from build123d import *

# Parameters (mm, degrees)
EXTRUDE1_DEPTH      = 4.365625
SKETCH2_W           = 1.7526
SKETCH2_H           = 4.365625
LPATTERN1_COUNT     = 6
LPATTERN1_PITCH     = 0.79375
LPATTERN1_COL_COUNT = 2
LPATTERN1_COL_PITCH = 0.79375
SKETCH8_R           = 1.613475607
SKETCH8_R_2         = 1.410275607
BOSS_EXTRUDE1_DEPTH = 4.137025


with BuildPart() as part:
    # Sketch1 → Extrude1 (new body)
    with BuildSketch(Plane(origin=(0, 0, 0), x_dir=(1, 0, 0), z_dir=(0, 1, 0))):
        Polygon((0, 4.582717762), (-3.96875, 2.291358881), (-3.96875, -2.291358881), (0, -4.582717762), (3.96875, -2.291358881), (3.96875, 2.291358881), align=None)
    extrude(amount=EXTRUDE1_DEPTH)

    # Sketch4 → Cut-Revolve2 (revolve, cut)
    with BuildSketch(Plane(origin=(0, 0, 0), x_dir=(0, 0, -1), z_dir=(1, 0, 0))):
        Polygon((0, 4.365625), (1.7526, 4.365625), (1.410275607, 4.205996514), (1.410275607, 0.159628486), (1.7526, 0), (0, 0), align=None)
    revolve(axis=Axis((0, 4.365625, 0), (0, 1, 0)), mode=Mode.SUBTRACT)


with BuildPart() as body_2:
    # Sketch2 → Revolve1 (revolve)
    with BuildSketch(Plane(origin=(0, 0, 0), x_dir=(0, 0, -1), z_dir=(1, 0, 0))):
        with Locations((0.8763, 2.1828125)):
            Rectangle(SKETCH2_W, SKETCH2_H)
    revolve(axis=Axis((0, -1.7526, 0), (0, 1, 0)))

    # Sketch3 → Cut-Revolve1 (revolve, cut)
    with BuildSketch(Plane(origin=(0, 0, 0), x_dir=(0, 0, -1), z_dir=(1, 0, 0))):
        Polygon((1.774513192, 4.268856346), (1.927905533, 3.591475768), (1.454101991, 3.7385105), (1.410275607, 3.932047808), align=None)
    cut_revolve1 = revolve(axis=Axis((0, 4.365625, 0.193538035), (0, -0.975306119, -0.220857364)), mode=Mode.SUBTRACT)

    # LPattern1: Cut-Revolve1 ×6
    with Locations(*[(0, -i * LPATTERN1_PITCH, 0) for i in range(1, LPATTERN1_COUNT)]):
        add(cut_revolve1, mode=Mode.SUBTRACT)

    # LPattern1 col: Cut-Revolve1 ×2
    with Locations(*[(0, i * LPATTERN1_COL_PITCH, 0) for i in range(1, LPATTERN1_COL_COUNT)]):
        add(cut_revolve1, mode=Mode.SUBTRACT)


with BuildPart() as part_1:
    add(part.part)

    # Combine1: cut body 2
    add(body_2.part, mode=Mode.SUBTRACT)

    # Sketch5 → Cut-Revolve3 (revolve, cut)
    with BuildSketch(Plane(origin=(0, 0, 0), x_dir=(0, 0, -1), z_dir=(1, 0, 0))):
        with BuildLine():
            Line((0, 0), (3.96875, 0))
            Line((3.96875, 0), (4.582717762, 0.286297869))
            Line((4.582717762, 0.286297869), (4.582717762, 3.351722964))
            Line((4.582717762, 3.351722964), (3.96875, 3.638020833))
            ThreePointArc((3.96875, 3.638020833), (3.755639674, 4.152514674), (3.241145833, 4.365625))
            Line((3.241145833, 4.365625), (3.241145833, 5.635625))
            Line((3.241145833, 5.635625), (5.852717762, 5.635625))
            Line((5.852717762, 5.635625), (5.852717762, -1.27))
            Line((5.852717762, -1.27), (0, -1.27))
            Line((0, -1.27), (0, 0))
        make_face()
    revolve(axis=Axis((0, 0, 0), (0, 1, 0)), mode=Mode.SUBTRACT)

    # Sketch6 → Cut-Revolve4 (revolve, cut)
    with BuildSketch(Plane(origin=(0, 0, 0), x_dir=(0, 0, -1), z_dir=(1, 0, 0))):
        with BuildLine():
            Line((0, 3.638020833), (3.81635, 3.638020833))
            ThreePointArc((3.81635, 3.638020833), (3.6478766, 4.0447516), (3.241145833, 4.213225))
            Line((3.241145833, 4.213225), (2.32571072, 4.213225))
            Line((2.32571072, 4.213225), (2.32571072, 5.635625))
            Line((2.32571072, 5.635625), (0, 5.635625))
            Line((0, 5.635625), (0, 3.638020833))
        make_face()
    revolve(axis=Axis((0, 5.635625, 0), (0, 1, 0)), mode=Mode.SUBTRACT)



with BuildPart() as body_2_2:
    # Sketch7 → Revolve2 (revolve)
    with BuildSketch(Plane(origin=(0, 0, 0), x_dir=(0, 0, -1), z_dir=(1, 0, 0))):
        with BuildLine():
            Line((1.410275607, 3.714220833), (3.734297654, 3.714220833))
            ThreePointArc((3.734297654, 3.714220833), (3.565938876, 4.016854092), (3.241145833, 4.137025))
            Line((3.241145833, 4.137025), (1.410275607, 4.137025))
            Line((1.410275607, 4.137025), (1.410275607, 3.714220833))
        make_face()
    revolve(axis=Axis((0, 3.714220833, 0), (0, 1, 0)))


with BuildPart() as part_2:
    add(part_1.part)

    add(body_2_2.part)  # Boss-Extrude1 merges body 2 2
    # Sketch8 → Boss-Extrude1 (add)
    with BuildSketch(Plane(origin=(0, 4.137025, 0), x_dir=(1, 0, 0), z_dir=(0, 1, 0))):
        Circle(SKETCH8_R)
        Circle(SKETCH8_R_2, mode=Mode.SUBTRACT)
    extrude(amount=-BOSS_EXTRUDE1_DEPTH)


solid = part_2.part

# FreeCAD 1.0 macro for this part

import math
import FreeCAD as App
import Part
import Sketcher

V = App.Vector
Q = App.Units.Quantity

doc = App.newDocument("Part")
params = doc.addObject("Spreadsheet::Sheet", "Params")
for row, (alias, value) in enumerate([
    ("pad1_length", "0.171875 in"),
    ("sketch2_width", "0.171875 in"),
    ("sketch2_height", "0.069 in"),
    ("groove_angle", "360 deg"),
    ("sketch3_width", "0.171875 in"),
    ("sketch3_height", "0.069 in"),
    ("revolution_angle", "360 deg"),
    ("groove2_angle", "360 deg"),
    ("linearpattern_pitch", "0.03125 in"),
    ("linearpattern2_pitch", "0.03125 in"),
    ("sketch5_width", "0.05 in"),
    ("sketch5_height", "0.15625 in"),
    ("groove3_angle", "360 deg"),
    ("sketch6_width", "0.056 in"),
    ("groove4_angle", "360 deg"),
    ("revolution2_angle", "360 deg"),
    ("pad2_length", "4.137025 mm"),
], start=1):
    params.set(f"A{row}", alias)
    params.set(f"B{row}", "=" + value)
    params.setAlias(f"B{row}", alias)

body = doc.addObject("PartDesign::Body", "Body")

sketch1 = doc.addObject("Sketcher::SketchObject", "Sketch")
body.addObject(sketch1)
sketch1.AttachmentSupport = (doc.XZ_Plane, [""])
sketch1.MapMode = "FlatFace"
sketch1.addGeometry(Part.LineSegment(V(0, -4.6, 0), V(-4, -2.3, 0)), False)
sketch1.addGeometry(Part.LineSegment(V(-4, -2.3, 0), V(-4, 2.3, 0)), False)
sketch1.addGeometry(Part.LineSegment(V(-4, 2.3, 0), V(0, 4.6, 0)), False)
sketch1.addGeometry(Part.LineSegment(V(0, 4.6, 0), V(4, 2.3, 0)), False)
sketch1.addGeometry(Part.LineSegment(V(4, 2.3, 0), V(4, -2.3, 0)), False)
sketch1.addGeometry(Part.LineSegment(V(4, -2.3, 0), V(0, -4.6, 0)), False)
sketch1.addConstraint(Sketcher.Constraint("Coincident", 0, 2, 1, 1))
sketch1.addConstraint(Sketcher.Constraint("Coincident", 1, 2, 2, 1))
sketch1.addConstraint(Sketcher.Constraint("Coincident", 2, 2, 3, 1))
sketch1.addConstraint(Sketcher.Constraint("Coincident", 3, 2, 4, 1))
sketch1.addConstraint(Sketcher.Constraint("Coincident", 4, 2, 5, 1))
sketch1.addConstraint(Sketcher.Constraint("Coincident", 5, 2, 0, 1))
sketch1.addConstraint(Sketcher.Constraint("Vertical", 1))
sketch1.addConstraint(Sketcher.Constraint("Vertical", 4))
sketch1.addConstraint(Sketcher.Constraint("Symmetric", 0, 2, 3, 2, -1, 1))
sketch1.addConstraint(Sketcher.Constraint("Symmetric", 2, 2, 5, 2, -1, 1))
sketch1.addConstraint(Sketcher.Constraint("PointOnObject", 2, 2, -2))
sketch1.addConstraint(Sketcher.Constraint("Parallel", 2, 5))
sketch1.addConstraint(Sketcher.Constraint("Horizontal", 1, 2, 3, 2))
sketch1.addConstraint(Sketcher.Constraint("Angle", 0, Q("150 deg")))
sketch1.addConstraint(Sketcher.Constraint("DistanceX", 0, 2, -1, 1, Q("0.15625 in")))
sketch1.addConstraint(Sketcher.Constraint("DistanceY", 1, 1, 1, 2, 4.582718))
pad1 = doc.addObject("PartDesign::Pad", "Pad")
body.addObject(pad1)
pad1.Profile = sketch1
pad1.setExpression("Length", "Params.pad1_length")
pad1.Reversed = True

sketch2 = doc.addObject("Sketcher::SketchObject", "Sketch001")
body.addObject(sketch2)
sketch2.AttachmentSupport = (doc.YZ_Plane, [""])
sketch2.MapMode = "FlatFace"
sketch2.addGeometry(Part.LineSegment(V(4.37, -1.75, 0), V(4.37, 0, 0)), False)
sketch2.addGeometry(Part.LineSegment(V(4.37, 0, 0), V(0, 0, 0)), False)
sketch2.addGeometry(Part.LineSegment(V(0, 0, 0), V(0, -1.75, 0)), False)
sketch2.addGeometry(Part.LineSegment(V(0, -1.75, 0), V(0.16, -1.41, 0)), False)
sketch2.addGeometry(Part.LineSegment(V(0.16, -1.41, 0), V(4.21, -1.41, 0)), False)
sketch2.addGeometry(Part.LineSegment(V(4.21, -1.41, 0), V(4.37, -1.75, 0)), False)
sketch2.addConstraint(Sketcher.Constraint("Coincident", 0, 2, 1, 1))
sketch2.addConstraint(Sketcher.Constraint("Coincident", 1, 2, 2, 1))
sketch2.addConstraint(Sketcher.Constraint("Coincident", 2, 2, 3, 1))
sketch2.addConstraint(Sketcher.Constraint("Coincident", 3, 2, 4, 1))
sketch2.addConstraint(Sketcher.Constraint("Coincident", 4, 2, 5, 1))
sketch2.addConstraint(Sketcher.Constraint("Coincident", 5, 2, 0, 1))
sketch2.addConstraint(Sketcher.Constraint("Vertical", 0))
sketch2.addConstraint(Sketcher.Constraint("Horizontal", 1))
sketch2.addConstraint(Sketcher.Constraint("Vertical", 2))
sketch2.addConstraint(Sketcher.Constraint("Horizontal", 4))
sketch2.addConstraint(Sketcher.Constraint("Coincident", 1, 2, -1, 1))
sketch2.addConstraint(Sketcher.Constraint("Horizontal", 2, 2, 5, 2))
sketch2.addConstraint(Sketcher.Constraint("Equal", 3, 5))
sketch2.addConstraint(Sketcher.Constraint("Angle", 3, Q("65 deg")))
sketch2.addConstraint(Sketcher.Constraint("DistanceX", 1, 2, 1, 1, Q("0.171875 in")))
sketch2.addConstraint(Sketcher.Constraint("DistanceY", 0, 1, 0, 2, Q("0.069 in")))
sketch2.addConstraint(Sketcher.Constraint("DistanceX", 4, 1, 4, 2, 4.046368))
sketch2.setExpression("Constraints[14]", "Params.sketch2_width")
sketch2.setExpression("Constraints[15]", "Params.sketch2_height")
groove = doc.addObject("PartDesign::Groove", "Groove")
body.addObject(groove)
groove.Profile = sketch2
groove.ReferenceAxis = (sketch2, ["H_Axis"])
groove.setExpression("Angle", "Params.groove_angle")
body2 = doc.addObject("PartDesign::Body", "Body001")

sketch3 = doc.addObject("Sketcher::SketchObject", "Sketch002")
body2.addObject(sketch3)
sketch3.AttachmentSupport = (doc.getObject("YZ_Plane001"), [""])
sketch3.MapMode = "FlatFace"
sketch3.addGeometry(Part.LineSegment(V(4.4, 0, 0), V(0, 0, 0)), False)
sketch3.addGeometry(Part.LineSegment(V(0, 0, 0), V(0, -1.8, 0)), False)
sketch3.addGeometry(Part.LineSegment(V(0, -1.8, 0), V(4.4, -1.8, 0)), False)
sketch3.addGeometry(Part.LineSegment(V(4.4, -1.8, 0), V(4.4, 0, 0)), False)
sketch3.addConstraint(Sketcher.Constraint("Coincident", 0, 2, 1, 1))
sketch3.addConstraint(Sketcher.Constraint("Coincident", 1, 2, 2, 1))
sketch3.addConstraint(Sketcher.Constraint("Coincident", 2, 2, 3, 1))
sketch3.addConstraint(Sketcher.Constraint("Coincident", 3, 2, 0, 1))
sketch3.addConstraint(Sketcher.Constraint("Horizontal", 0))
sketch3.addConstraint(Sketcher.Constraint("Vertical", 1))
sketch3.addConstraint(Sketcher.Constraint("Horizontal", 2))
sketch3.addConstraint(Sketcher.Constraint("Vertical", 3))
sketch3.addConstraint(Sketcher.Constraint("Coincident", 0, 2, -1, 1))
sketch3.addConstraint(Sketcher.Constraint("DistanceX", 0, 2, 0, 1, Q("0.171875 in")))
sketch3.addConstraint(Sketcher.Constraint("DistanceY", 1, 2, 1, 1, Q("0.069 in")))
sketch3.setExpression("Constraints[9]", "Params.sketch3_width")
sketch3.setExpression("Constraints[10]", "Params.sketch3_height")
revolution = doc.addObject("PartDesign::Revolution", "Revolution")
body2.addObject(revolution)
revolution.Profile = sketch3
revolution.ReferenceAxis = (sketch3, ["H_Axis"])
revolution.setExpression("Angle", "Params.revolution_angle")

sketch4 = doc.addObject("Sketcher::SketchObject", "Sketch003")
body2.addObject(sketch4)
sketch4.AttachmentSupport = (doc.getObject("YZ_Plane001"), [""])
sketch4.MapMode = "FlatFace"
sketch4.addGeometry(Part.LineSegment(V(3.59, -1.93, 0), V(4.27, -1.77, 0)), False)
sketch4.addGeometry(Part.LineSegment(V(4.27, -1.77, 0), V(3.93, -1.41, 0)), False)
sketch4.addGeometry(Part.LineSegment(V(3.93, -1.41, 0), V(3.74, -1.45, 0)), False)
sketch4.addGeometry(Part.LineSegment(V(3.74, -1.45, 0), V(3.59, -1.93, 0)), False)
sketch4.addGeometry(Part.LineSegment(V(3.85, 0.08, 0), V(3.17, -0.08, 0)), True)
sketch4.addConstraint(Sketcher.Constraint("Coincident", 0, 2, 1, 1))
sketch4.addConstraint(Sketcher.Constraint("Coincident", 1, 2, 2, 1))
sketch4.addConstraint(Sketcher.Constraint("Coincident", 2, 2, 3, 1))
sketch4.addConstraint(Sketcher.Constraint("Coincident", 3, 2, 0, 1))
sketch4.addConstraint(Sketcher.Constraint("Parallel", 0, 2))
sketch4.addConstraint(Sketcher.Constraint("Parallel", 2, 4))
sketch4.addConstraint(Sketcher.Constraint("Equal", 1, 3))
sketch4.addConstraint(Sketcher.Constraint("Equal", 0, 4))
sketch4.addConstraint(Sketcher.Constraint("DistanceY", 2, 2, -1, 1, 1.454102))
sketch4.addConstraint(Sketcher.Constraint("DistanceY", 2, 2, 4, 1, 1.530798))
sketch4.addConstraint(Sketcher.Constraint("DistanceY", 3, 2, 4, 1, 2.004602))
sketch4.addConstraint(Sketcher.Constraint("Distance", 0, 0.694531))
sketch4.addConstraint(Sketcher.Constraint("DistanceX", -1, 1, 2, 2, 3.73851))
sketch4.addConstraint(Sketcher.Constraint("DistanceX", -1, 1, 4, 1, 3.849651))
sketch4.addConstraint(Sketcher.Constraint("DistanceX", -1, 1, 4, 2, 3.172271))
sketch4.addConstraint(Sketcher.Constraint("DistanceX", 1, 2, 0, 2, 0.336809))
groove2 = doc.addObject("PartDesign::Groove", "Groove001")
body2.addObject(groove2)
groove2.Profile = sketch4
groove2.ReferenceAxis = (sketch4, ["Axis0"])
groove2.setExpression("Angle", "Params.groove2_angle")
doc.recompute()

linearpattern = doc.addObject("PartDesign::LinearPattern", "LinearPattern")
body2.addObject(linearpattern)
linearpattern.Originals = [groove2]
linearpattern.Direction = (doc.getObject("Y_Axis001"), [""])
linearpattern.Mode = "offset"
linearpattern.setExpression("Offset", "Params.linearpattern_pitch")
linearpattern.Occurrences = 6
linearpattern.Reversed = True
body2.Tip = linearpattern
doc.recompute()

linearpattern2 = doc.addObject("PartDesign::LinearPattern", "LinearPattern001")
body2.addObject(linearpattern2)
linearpattern2.Originals = [groove2]
linearpattern2.Direction = (doc.getObject("Y_Axis001"), [""])
linearpattern2.Mode = "offset"
linearpattern2.setExpression("Offset", "Params.linearpattern2_pitch")
linearpattern2.Occurrences = 2
body2.Tip = linearpattern2
doc.recompute()

boolean = doc.addObject("PartDesign::Boolean", "Boolean")
body.addObject(boolean)
boolean.Type = "Cut"
boolean.addObjects([body2])

sketch5 = doc.addObject("Sketcher::SketchObject", "Sketch004")
body.addObject(sketch5)
sketch5.AttachmentSupport = (doc.YZ_Plane, [""])
sketch5.MapMode = "FlatFace"
sketch5.addGeometry(Part.LineSegment(V(0, -4, 0), V(0, 0, 0)), False)
sketch5.addGeometry(Part.LineSegment(V(0, 0, 0), V(-1.3, 0, 0)), False)
sketch5.addGeometry(Part.LineSegment(V(-1.3, 0, 0), V(-1.3, -5.9, 0)), False)
sketch5.addGeometry(Part.LineSegment(V(-1.3, -5.9, 0), V(5.6, -5.9, 0)), False)
sketch5.addGeometry(Part.LineSegment(V(5.6, -5.9, 0), V(5.6, -3.2, 0)), False)
sketch5.addGeometry(Part.LineSegment(V(5.6, -3.2, 0), V(4.4, -3.2, 0)), False)
sketch5.addGeometry(Part.ArcOfCircle(Part.Circle(V(3.6, -3.2, 0), V(0, 0, 1), 0.7), math.radians(-90), math.radians(0)), False)
sketch5.addGeometry(Part.LineSegment(V(3.6, -4, 0), V(3.4, -4.6, 0)), False)
sketch5.addGeometry(Part.LineSegment(V(3.4, -4.6, 0), V(0.3, -4.6, 0)), False)
sketch5.addGeometry(Part.LineSegment(V(0.3, -4.6, 0), V(0, -4, 0)), False)
sketch5.addConstraint(Sketcher.Constraint("Coincident", 0, 2, 1, 1))
sketch5.addConstraint(Sketcher.Constraint("Coincident", 1, 2, 2, 1))
sketch5.addConstraint(Sketcher.Constraint("Coincident", 2, 2, 3, 1))
sketch5.addConstraint(Sketcher.Constraint("Coincident", 3, 2, 4, 1))
sketch5.addConstraint(Sketcher.Constraint("Coincident", 4, 2, 5, 1))
sketch5.addConstraint(Sketcher.Constraint("Coincident", 5, 2, 6, 2))
sketch5.addConstraint(Sketcher.Constraint("Coincident", 6, 1, 7, 1))
sketch5.addConstraint(Sketcher.Constraint("Coincident", 7, 2, 8, 1))
sketch5.addConstraint(Sketcher.Constraint("Coincident", 8, 2, 9, 1))
sketch5.addConstraint(Sketcher.Constraint("Coincident", 9, 2, 0, 1))
sketch5.addConstraint(Sketcher.Constraint("Vertical", 0))
sketch5.addConstraint(Sketcher.Constraint("Horizontal", 1))
sketch5.addConstraint(Sketcher.Constraint("Vertical", 2))
sketch5.addConstraint(Sketcher.Constraint("Horizontal", 3))
sketch5.addConstraint(Sketcher.Constraint("Vertical", 4))
sketch5.addConstraint(Sketcher.Constraint("Horizontal", 5))
sketch5.addConstraint(Sketcher.Constraint("Horizontal", 8))
sketch5.addConstraint(Sketcher.Constraint("Coincident", 0, 2, -1, 1))
sketch5.addConstraint(Sketcher.Constraint("Horizontal", 6, 3, 4, 2))
sketch5.addConstraint(Sketcher.Constraint("Horizontal", 6, 1, 9, 2))
sketch5.addConstraint(Sketcher.Constraint("Equal", 1, 5))
sketch5.addConstraint(Sketcher.Constraint("Equal", 7, 9))
sketch5.addConstraint(Sketcher.Constraint("Angle", 7, Q("-115 deg")))
sketch5.addConstraint(Sketcher.Constraint("DistanceX", 1, 2, 1, 1, Q("0.05 in")))
sketch5.addConstraint(Sketcher.Constraint("DistanceY", 0, 1, 0, 2, Q("0.15625 in")))
sketch5.addConstraint(Sketcher.Constraint("DistanceY", 3, 2, 7, 2, Q("0.05 in")))
sketch5.addConstraint(Sketcher.Constraint("DistanceX", -1, 1, 5, 2, Q("0.171875 in")))
sketch5.addConstraint(Sketcher.Constraint("Radius", 6, 0.727604))
sketch5.addConstraint(Sketcher.Constraint("DistanceY", 4, 1, 4, 2, 2.611572))
sketch5.addConstraint(Sketcher.Constraint("DistanceX", 8, 2, 8, 1, 3.065425))
sketch5.setExpression("Constraints[23]", "Params.sketch5_width")
sketch5.setExpression("Constraints[24]", "Params.sketch5_height")
groove3 = doc.addObject("PartDesign::Groove", "Groove002")
body.addObject(groove3)
groove3.Profile = sketch5
groove3.ReferenceAxis = (sketch5, ["H_Axis"])
groove3.setExpression("Angle", "Params.groove3_angle")

sketch6 = doc.addObject("Sketcher::SketchObject", "Sketch005")
body.addObject(sketch6)
sketch6.AttachmentSupport = (doc.YZ_Plane, [""])
sketch6.MapMode = "FlatFace"
sketch6.addGeometry(Part.LineSegment(V(3.6, 0, 0), V(3.6, -3.8, 0)), False)
sketch6.addGeometry(Part.ArcOfCircle(Part.Circle(V(3.6, -3.2, 0), V(0, 0, 1), 0.6), math.radians(-90), math.radians(0)), False)
sketch6.addGeometry(Part.LineSegment(V(4.2, -3.2, 0), V(4.2, -2.3, 0)), False)
sketch6.addGeometry(Part.LineSegment(V(4.2, -2.3, 0), V(5.6, -2.3, 0)), False)
sketch6.addGeometry(Part.LineSegment(V(5.6, -2.3, 0), V(5.6, 0, 0)), False)
sketch6.addGeometry(Part.LineSegment(V(5.6, 0, 0), V(3.6, 0, 0)), False)
sketch6.addConstraint(Sketcher.Constraint("Coincident", 0, 2, 1, 1))
sketch6.addConstraint(Sketcher.Constraint("Tangent", 1, 2, 2, 1))
sketch6.addConstraint(Sketcher.Constraint("Coincident", 2, 2, 3, 1))
sketch6.addConstraint(Sketcher.Constraint("Coincident", 3, 2, 4, 1))
sketch6.addConstraint(Sketcher.Constraint("Coincident", 4, 2, 5, 1))
sketch6.addConstraint(Sketcher.Constraint("Coincident", 5, 2, 0, 1))
sketch6.addConstraint(Sketcher.Constraint("Vertical", 0))
sketch6.addConstraint(Sketcher.Constraint("Vertical", 2))
sketch6.addConstraint(Sketcher.Constraint("Horizontal", 3))
sketch6.addConstraint(Sketcher.Constraint("Vertical", 4))
sketch6.addConstraint(Sketcher.Constraint("Horizontal", 5))
sketch6.addConstraint(Sketcher.Constraint("PointOnObject", 4, 2, -1))
sketch6.addConstraint(Sketcher.Constraint("Vertical", 1, 3, 0, 2))
sketch6.addConstraint(Sketcher.Constraint("DistanceX", 3, 1, 3, 2, Q("0.056 in")))
sketch6.addConstraint(Sketcher.Constraint("Radius", 1, 0.575204))
sketch6.addConstraint(Sketcher.Constraint("DistanceY", 0, 2, 0, 1, 3.81635))
sketch6.addConstraint(Sketcher.Constraint("DistanceY", 4, 1, 4, 2, 2.325711))
sketch6.addConstraint(Sketcher.Constraint("DistanceX", -1, 1, 1, 3, 3.638021))
sketch6.setExpression("Constraints[13]", "Params.sketch6_width")
groove4 = doc.addObject("PartDesign::Groove", "Groove003")
body.addObject(groove4)
groove4.Profile = sketch6
groove4.ReferenceAxis = (sketch6, ["H_Axis"])
groove4.setExpression("Angle", "Params.groove4_angle")
body3 = doc.addObject("PartDesign::Body", "Body002")

sketch7 = doc.addObject("Sketcher::SketchObject", "Sketch006")
body3.addObject(sketch7)
sketch7.AttachmentSupport = (doc.getObject("YZ_Plane002"), [""])
sketch7.MapMode = "FlatFace"
sketch7.addGeometry(Part.LineSegment(V(3.71, -1.41, 0), V(3.71, -3.73, 0)), False)
sketch7.addGeometry(Part.ArcOfCircle(Part.Circle(V(3.64, -3.24, 0), V(0, 0, 1), 0.5), math.radians(-81), math.radians(0)), False)
sketch7.addGeometry(Part.LineSegment(V(4.14, -3.24, 0), V(4.14, -1.41, 0)), False)
sketch7.addGeometry(Part.LineSegment(V(4.14, -1.41, 0), V(3.71, -1.41, 0)), False)
sketch7.addConstraint(Sketcher.Constraint("Coincident", 0, 2, 1, 1))
sketch7.addConstraint(Sketcher.Constraint("Tangent", 1, 2, 2, 1))
sketch7.addConstraint(Sketcher.Constraint("Coincident", 2, 2, 3, 1))
sketch7.addConstraint(Sketcher.Constraint("Coincident", 3, 2, 0, 1))
sketch7.addConstraint(Sketcher.Constraint("Vertical", 0))
sketch7.addConstraint(Sketcher.Constraint("Vertical", 2))
sketch7.addConstraint(Sketcher.Constraint("Horizontal", 3))
sketch7.addConstraint(Sketcher.Constraint("DistanceX", 1, 3, 0, 2, Q("0.003 in")))
sketch7.addConstraint(Sketcher.Constraint("Radius", 1, 0.499004))
sketch7.addConstraint(Sketcher.Constraint("DistanceY", 2, 1, 2, 2, 1.83087))
sketch7.addConstraint(Sketcher.Constraint("DistanceX", -1, 1, 1, 3, 3.638021))
sketch7.addConstraint(Sketcher.Constraint("DistanceY", 1, 3, -1, 1, 3.241146))
revolution2 = doc.addObject("PartDesign::Revolution", "Revolution001")
body3.addObject(revolution2)
revolution2.Profile = sketch7
revolution2.ReferenceAxis = (sketch7, ["H_Axis"])
revolution2.setExpression("Angle", "Params.revolution2_angle")
body.AllowCompound = True
doc.recompute()

boolean2 = doc.addObject("PartDesign::Boolean", "Boolean001")
body.addObject(boolean2)
boolean2.Type = "Fuse"
boolean2.addObjects([body3])

sketch8 = doc.addObject("Sketcher::SketchObject", "Sketch007")
body.addObject(sketch8)
sketch8.AttachmentSupport = (doc.XZ_Plane, [""])
sketch8.MapMode = "FlatFace"
sketch8.AttachmentOffset = App.Placement(V(0, 0, -4.137025), App.Rotation())
sketch8.addGeometry(Part.Circle(V(0, 0, 0), V(0, 0, 1), 1.6), False)
sketch8.addGeometry(Part.Circle(V(0, 0, 0), V(0, 0, 1), 1.4), False)
sketch8.addConstraint(Sketcher.Constraint("Coincident", 0, 3, -1, 1))
sketch8.addConstraint(Sketcher.Constraint("Coincident", 1, 3, -1, 1))
sketch8.addConstraint(Sketcher.Constraint("Diameter", 0, 3.226951))
sketch8.addConstraint(Sketcher.Constraint("Diameter", 1, 2.820551))
pad2 = doc.addObject("PartDesign::Pad", "Pad001")
body.addObject(pad2)
pad2.Profile = sketch8
pad2.setExpression("Length", "Params.pad2_length")

doc.recompute()
